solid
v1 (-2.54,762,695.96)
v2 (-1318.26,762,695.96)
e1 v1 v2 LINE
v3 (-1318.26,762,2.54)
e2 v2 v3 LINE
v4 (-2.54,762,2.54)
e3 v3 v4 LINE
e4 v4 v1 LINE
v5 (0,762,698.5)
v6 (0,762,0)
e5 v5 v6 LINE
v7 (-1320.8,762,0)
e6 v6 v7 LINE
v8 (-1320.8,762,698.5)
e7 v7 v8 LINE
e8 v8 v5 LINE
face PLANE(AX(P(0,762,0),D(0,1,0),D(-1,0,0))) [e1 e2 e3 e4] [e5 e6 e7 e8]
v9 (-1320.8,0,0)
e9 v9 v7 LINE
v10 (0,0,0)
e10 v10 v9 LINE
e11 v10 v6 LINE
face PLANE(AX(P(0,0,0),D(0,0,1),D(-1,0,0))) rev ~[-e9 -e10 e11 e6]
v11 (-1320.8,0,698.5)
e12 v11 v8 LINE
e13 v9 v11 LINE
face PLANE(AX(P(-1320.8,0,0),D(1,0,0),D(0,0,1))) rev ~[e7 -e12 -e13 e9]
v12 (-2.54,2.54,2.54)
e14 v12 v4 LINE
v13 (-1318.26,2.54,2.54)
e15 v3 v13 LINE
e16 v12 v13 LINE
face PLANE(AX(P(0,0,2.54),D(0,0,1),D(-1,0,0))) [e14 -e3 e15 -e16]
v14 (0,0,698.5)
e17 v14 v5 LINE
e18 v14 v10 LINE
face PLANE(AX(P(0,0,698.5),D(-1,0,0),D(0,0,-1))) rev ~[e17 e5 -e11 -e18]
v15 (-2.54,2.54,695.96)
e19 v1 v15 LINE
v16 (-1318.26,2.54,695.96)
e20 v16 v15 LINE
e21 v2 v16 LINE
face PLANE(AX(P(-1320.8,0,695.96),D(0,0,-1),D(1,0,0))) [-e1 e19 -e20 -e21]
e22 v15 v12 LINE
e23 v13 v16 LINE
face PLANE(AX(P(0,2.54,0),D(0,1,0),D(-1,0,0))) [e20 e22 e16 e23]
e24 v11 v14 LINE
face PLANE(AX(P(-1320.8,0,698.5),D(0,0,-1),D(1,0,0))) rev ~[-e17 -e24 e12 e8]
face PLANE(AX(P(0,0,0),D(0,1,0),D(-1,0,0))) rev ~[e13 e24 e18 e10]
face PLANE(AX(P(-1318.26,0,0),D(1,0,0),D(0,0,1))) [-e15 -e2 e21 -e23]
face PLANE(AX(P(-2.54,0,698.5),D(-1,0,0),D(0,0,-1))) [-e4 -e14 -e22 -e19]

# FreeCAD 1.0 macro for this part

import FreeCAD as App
import Part
import Sketcher

V = App.Vector
Q = App.Units.Quantity


def faces_at(feature, points):
    """Names of the faces that lie closest to the given points."""
    faces = feature.Shape.Faces
    near = lambda p: min(range(len(faces)), key=lambda i: faces[i].distToShape(Part.Vertex(*p))[0])
    return sorted({f"Face{near(p) + 1}" for p in points})

doc = App.newDocument("Part")
params = doc.addObject("Spreadsheet::Sheet", "Params")
for row, (alias, value) in enumerate([
    ("sketch1_width", "52 in"),
    ("sketch1_height", "27.5 in"),
    ("pad1_length", "30 in"),
    ("thickness_wall", "0.1 in"),
], start=1):
    params.set(f"A{row}", alias)
    params.set(f"B{row}", "=" + value)
    params.setAlias(f"B{row}", alias)

body = doc.addObject("PartDesign::Body", "Body")

# Sketch on XZ plane
sketch1 = body.newObject("Sketcher::SketchObject", "Sketch")
sketch1.AttachmentSupport = (doc.getObject("XZ_Plane"), [""])
sketch1.MapMode = "FlatFace"
sketch1.addGeometry([
    Part.LineSegment(V(0, 698.5, 0), V(0, 0, 0)),
    Part.LineSegment(V(0, 0, 0), V(-1320.8, 0, 0)),
    Part.LineSegment(V(-1320.8, 0, 0), V(-1320.8, 698.5, 0)),
    Part.LineSegment(V(-1320.8, 698.5, 0), V(0, 698.5, 0)),
], False)
sketch1.addConstraint([
    Sketcher.Constraint("Coincident", 0, 2, 1, 1),
    Sketcher.Constraint("Coincident", 1, 2, 2, 1),
    Sketcher.Constraint("Coincident", 2, 2, 3, 1),
    Sketcher.Constraint("Coincident", 3, 2, 0, 1),
    Sketcher.Constraint("Vertical", 0),
    Sketcher.Constraint("Horizontal", 1),
    Sketcher.Constraint("Vertical", 2),
    Sketcher.Constraint("Horizontal", 3),
    Sketcher.Constraint("Coincident", 0, 2, -1, 1),
    Sketcher.Constraint("DistanceX", 1, 2, 1, 1, Q("52 in")),
    Sketcher.Constraint("DistanceY", 0, 2, 0, 1, Q("27.5 in")),
])
sketch1.setExpression("Constraints[9]", "Params.sketch1_width")
sketch1.setExpression("Constraints[10]", "Params.sketch1_height")
pad1 = body.newObject("PartDesign::Pad", "Pad")
pad1.Profile = sketch1
pad1.setExpression("Length", "Params.pad1_length")
pad1.Reversed = True
doc.recompute()

thickness = body.newObject("PartDesign::Thickness", "Thickness")
thickness.Base = (pad1, faces_at(pad1, [(-440.267, 762, 465.667)]))
thickness.setExpression("Value", "Params.thickness_wall")
thickness.Reversed = True
thickness.Join = "Intersection"

doc.recompute()
